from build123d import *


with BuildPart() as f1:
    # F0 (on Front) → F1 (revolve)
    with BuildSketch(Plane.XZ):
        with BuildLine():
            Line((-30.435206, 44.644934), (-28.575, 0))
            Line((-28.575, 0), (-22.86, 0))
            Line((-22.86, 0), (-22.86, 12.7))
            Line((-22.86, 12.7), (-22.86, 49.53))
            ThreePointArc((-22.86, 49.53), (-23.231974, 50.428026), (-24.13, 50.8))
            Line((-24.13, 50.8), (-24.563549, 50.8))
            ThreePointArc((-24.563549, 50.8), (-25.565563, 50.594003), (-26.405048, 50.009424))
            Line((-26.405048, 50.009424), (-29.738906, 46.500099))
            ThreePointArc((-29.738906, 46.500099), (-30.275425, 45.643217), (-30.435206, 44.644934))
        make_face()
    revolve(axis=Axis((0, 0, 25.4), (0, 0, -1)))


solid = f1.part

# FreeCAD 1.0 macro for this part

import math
import FreeCAD as App
import Part
import Sketcher
from FreeCAD import Vector
Q = App.Units.Quantity

doc = App.newDocument("Part")
body = doc.addObject("PartDesign::Body", "Body")

sketch1 = doc.addObject("Sketcher::SketchObject", "Sketch")
body.addObject(sketch1)
sketch1.AttachmentSupport = (doc.XZ_Plane, [""])
sketch1.MapMode = "FlatFace"
sketch1.addGeometry([
    Part.LineSegment(Vector(-30.435206, 44.644934, 0), Vector(-28.575, 0, 0)),
    Part.LineSegment(Vector(-28.575, 0, 0), Vector(-22.86, 0, 0)),
    Part.LineSegment(Vector(-22.86, 0, 0), Vector(-22.86, 49.53, 0)),
    Part.ArcOfCircle(Part.Circle(Vector(-24.129999, 49.530001, 0), Vector(0, 0, 1), 1.269999), math.radians(-0.00006), math.radians(90.00006)),
    Part.LineSegment(Vector(-24.13, 50.8, 0), Vector(-24.563549, 50.8, 0)),
    Part.ArcOfCircle(Part.Circle(Vector(-24.56355, 48.260001, 0), Vector(0, 0, 1), 2.539999), math.radians(89.999972), math.radians(136.4688)),
    Part.LineSegment(Vector(-26.405048, 50.009424, 0), Vector(-29.738906, 46.500099, 0)),
    Part.ArcOfCircle(Part.Circle(Vector(-27.8974, 44.750672, 0), Vector(0, 0, 1), 2.540008), math.radians(136.468858), math.radians(182.385852)),
], False)
sketch1.addConstraint([
    Sketcher.Constraint("Coincident", 0, 2, 1, 1),
    Sketcher.Constraint("Coincident", 1, 2, 2, 1),
    Sketcher.Constraint("Tangent", 2, 2, 3, 1),
    Sketcher.Constraint("Tangent", 3, 2, 4, 1),
    Sketcher.Constraint("Tangent", 4, 2, 5, 1),
    Sketcher.Constraint("Tangent", 5, 2, 6, 1),
    Sketcher.Constraint("Tangent", 6, 2, 7, 1),
    Sketcher.Constraint("Tangent", 7, 2, 0, 1),
    Sketcher.Constraint("Horizontal", 1),
    Sketcher.Constraint("Vertical", 2),
    Sketcher.Constraint("Horizontal", 4),
    Sketcher.Constraint("PointOnObject", 0, 2, -1),
    Sketcher.Constraint("Radius", 5, Q("0.1 in")),
    Sketcher.Constraint("Radius", 3, Q("0.0499999 in")),
    Sketcher.Constraint("DistanceY", -1, 1, 3, 2, Q("2 in")),
    Sketcher.Constraint("DistanceX", 1, 2, -1, 1, Q("0.9 in")),
    Sketcher.Constraint("DistanceX", 1, 1, 1, 2, Q("0.225 in")),
    Sketcher.Constraint("Radius", 7, 2.540008),
    Sketcher.Constraint("DistanceX", 5, 2, 4, 2, Q("0.0725 in")),
    Sketcher.Constraint("DistanceX", 4, 2, 4, 1, 0.433549),
    Sketcher.Constraint("DistanceX", 7, 3, -1, 1, 27.8974),
])
revolution = doc.addObject("PartDesign::Revolution", "Revolution")
body.addObject(revolution)
revolution.Profile = sketch1
revolution.ReferenceAxis = (sketch1, ["V_Axis"])
revolution.Angle = 360

doc.recompute()
